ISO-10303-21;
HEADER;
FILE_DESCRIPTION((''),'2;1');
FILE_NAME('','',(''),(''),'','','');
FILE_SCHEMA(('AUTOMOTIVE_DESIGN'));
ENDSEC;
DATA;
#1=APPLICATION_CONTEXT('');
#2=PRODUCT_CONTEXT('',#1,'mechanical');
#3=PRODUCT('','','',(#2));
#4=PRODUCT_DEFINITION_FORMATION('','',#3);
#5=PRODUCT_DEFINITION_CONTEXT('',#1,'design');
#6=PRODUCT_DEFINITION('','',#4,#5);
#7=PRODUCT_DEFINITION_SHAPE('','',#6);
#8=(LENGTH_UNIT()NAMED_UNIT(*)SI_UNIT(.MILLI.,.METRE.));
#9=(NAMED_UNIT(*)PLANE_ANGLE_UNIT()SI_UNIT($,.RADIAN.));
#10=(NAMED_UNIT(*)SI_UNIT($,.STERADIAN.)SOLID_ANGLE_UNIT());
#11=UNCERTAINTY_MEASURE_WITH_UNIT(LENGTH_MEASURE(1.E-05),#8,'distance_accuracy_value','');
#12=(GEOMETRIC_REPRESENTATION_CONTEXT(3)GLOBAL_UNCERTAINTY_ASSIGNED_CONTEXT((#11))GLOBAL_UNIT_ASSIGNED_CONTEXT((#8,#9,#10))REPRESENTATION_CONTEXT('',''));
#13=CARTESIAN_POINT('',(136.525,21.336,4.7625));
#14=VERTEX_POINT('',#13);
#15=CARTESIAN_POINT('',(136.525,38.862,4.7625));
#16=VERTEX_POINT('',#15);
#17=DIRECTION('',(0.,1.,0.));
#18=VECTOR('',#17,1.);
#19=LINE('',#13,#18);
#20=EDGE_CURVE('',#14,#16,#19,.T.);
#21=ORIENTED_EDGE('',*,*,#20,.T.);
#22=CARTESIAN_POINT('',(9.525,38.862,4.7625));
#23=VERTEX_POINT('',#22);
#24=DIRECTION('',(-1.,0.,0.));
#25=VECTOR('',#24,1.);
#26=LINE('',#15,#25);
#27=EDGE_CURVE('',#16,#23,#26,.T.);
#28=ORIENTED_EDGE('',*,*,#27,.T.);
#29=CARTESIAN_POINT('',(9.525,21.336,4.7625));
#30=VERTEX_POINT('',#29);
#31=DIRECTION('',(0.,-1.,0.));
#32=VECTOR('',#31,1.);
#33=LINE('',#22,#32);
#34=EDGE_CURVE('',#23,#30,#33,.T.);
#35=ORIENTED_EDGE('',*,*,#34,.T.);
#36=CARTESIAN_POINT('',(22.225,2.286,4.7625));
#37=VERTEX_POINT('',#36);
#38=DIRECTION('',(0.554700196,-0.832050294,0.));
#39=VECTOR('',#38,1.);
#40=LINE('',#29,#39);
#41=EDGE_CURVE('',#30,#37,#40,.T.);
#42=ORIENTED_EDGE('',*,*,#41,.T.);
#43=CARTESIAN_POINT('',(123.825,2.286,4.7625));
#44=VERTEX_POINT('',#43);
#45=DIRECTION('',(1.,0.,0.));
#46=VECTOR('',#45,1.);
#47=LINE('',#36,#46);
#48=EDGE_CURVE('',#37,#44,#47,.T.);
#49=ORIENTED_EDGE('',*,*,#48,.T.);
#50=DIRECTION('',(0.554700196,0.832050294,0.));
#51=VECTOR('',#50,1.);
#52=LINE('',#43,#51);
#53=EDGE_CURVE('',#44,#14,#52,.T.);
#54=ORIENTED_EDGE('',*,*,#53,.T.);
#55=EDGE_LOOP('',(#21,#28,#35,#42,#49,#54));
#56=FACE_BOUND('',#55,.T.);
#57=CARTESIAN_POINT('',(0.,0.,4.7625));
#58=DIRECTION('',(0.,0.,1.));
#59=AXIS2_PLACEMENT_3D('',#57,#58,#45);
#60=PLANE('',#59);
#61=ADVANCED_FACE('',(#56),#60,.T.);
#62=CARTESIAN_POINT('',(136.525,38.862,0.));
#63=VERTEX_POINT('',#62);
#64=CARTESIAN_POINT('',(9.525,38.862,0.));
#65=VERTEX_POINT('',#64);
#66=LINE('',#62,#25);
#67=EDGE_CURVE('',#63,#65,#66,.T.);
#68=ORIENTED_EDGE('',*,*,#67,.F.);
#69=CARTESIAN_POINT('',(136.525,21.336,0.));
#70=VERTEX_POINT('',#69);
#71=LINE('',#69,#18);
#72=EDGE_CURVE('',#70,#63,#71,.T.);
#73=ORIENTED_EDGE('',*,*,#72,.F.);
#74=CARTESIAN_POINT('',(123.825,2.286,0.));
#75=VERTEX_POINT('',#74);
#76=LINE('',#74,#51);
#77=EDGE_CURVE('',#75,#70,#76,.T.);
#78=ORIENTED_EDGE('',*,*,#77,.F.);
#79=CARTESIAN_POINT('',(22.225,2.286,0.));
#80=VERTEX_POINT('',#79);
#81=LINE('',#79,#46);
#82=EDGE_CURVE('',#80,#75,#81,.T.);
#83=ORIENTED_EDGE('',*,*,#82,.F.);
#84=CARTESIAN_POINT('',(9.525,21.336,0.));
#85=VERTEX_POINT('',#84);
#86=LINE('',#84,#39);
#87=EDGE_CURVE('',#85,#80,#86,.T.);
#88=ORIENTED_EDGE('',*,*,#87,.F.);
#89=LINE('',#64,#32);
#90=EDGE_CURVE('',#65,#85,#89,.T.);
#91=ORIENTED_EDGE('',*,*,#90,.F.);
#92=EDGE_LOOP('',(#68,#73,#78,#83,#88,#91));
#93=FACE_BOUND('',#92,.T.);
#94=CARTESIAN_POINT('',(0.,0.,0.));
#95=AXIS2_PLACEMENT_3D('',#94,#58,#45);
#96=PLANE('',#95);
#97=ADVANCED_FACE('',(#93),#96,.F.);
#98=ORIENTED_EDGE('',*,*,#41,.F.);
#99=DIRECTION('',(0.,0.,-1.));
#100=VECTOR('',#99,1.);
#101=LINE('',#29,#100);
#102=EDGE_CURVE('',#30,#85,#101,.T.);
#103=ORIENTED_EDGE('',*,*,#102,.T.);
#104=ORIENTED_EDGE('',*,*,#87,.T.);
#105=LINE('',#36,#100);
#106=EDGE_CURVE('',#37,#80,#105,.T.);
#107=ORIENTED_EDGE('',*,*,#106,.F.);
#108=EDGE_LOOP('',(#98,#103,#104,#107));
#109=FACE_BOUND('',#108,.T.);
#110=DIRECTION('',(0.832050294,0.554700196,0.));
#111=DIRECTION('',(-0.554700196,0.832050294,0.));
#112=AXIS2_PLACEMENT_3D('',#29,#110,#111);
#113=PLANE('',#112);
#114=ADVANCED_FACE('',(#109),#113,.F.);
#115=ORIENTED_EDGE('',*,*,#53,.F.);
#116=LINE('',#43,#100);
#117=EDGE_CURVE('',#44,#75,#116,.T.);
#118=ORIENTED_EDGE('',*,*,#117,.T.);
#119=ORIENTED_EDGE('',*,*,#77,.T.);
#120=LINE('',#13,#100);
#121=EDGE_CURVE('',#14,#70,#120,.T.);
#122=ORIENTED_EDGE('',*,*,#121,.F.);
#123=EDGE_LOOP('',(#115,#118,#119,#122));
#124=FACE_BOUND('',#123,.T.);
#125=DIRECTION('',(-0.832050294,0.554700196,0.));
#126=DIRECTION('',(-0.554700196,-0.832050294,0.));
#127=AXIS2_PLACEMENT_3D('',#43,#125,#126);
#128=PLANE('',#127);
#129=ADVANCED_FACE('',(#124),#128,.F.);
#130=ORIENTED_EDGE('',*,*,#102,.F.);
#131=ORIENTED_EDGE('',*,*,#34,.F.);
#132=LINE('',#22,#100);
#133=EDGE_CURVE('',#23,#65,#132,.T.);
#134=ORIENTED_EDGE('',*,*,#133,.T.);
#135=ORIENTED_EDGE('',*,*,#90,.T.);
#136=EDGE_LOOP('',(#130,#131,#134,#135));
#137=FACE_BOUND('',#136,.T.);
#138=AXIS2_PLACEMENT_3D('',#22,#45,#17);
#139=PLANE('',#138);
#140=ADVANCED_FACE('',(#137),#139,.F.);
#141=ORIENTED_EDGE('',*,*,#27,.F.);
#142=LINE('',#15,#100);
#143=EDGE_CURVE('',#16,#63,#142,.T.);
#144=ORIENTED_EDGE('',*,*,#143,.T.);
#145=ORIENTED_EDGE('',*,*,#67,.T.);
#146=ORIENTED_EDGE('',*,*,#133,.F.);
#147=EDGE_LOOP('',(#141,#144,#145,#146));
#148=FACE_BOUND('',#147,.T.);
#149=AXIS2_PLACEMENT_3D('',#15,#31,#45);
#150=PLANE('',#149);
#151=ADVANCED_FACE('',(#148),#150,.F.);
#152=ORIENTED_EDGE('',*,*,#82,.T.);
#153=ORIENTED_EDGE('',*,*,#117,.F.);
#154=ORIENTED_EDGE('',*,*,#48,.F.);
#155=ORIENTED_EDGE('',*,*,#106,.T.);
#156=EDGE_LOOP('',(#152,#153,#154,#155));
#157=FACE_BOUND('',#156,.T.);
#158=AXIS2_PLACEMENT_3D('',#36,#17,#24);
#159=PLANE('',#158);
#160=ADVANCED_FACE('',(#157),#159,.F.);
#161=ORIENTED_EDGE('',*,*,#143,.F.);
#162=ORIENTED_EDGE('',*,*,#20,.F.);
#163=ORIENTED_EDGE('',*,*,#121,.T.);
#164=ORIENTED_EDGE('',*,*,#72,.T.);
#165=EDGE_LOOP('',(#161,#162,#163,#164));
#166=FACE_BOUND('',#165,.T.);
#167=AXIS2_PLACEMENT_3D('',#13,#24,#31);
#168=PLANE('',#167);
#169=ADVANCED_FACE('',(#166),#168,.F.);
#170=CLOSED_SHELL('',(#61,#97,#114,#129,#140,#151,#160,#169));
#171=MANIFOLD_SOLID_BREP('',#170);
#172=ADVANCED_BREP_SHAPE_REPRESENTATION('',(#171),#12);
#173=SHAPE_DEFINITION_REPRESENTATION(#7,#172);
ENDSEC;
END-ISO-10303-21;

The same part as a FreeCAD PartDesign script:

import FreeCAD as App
import Part
import Sketcher
from FreeCAD import Vector
Q = App.Units.Quantity

doc = App.newDocument("Part")
body = doc.addObject("PartDesign::Body", "Body")

# Sketch on XY plane
sketch1 = doc.addObject("Sketcher::SketchObject", "Sketch")
body.addObject(sketch1)
sketch1.AttachmentSupport = (doc.XY_Plane, [""])
sketch1.MapMode = "FlatFace"
sketch1.addGeometry([
    Part.LineSegment(Vector(124, 2, 0), Vector(137, 21, 0)),  # 0
    Part.LineSegment(Vector(137, 21, 0), Vector(137, 39, 0)),  # 1
    Part.LineSegment(Vector(137, 39, 0), Vector(10, 39, 0)),  # 2
    Part.LineSegment(Vector(10, 39, 0), Vector(10, 21, 0)),  # 3
    Part.LineSegment(Vector(10, 21, 0), Vector(22, 2, 0)),  # 4
    Part.LineSegment(Vector(22, 2, 0), Vector(124, 2, 0)),  # 5
], False)
sketch1.addConstraint([
    Sketcher.Constraint("Coincident", 0, 2, 1, 1),
    Sketcher.Constraint("Coincident", 1, 2, 2, 1),
    Sketcher.Constraint("Coincident", 2, 2, 3, 1),
    Sketcher.Constraint("Coincident", 3, 2, 4, 1),
    Sketcher.Constraint("Coincident", 4, 2, 5, 1),
    Sketcher.Constraint("Coincident", 5, 2, 0, 1),
    Sketcher.Constraint("Vertical", 1),
    Sketcher.Constraint("Horizontal", 2),
    Sketcher.Constraint("Vertical", 3),
    Sketcher.Constraint("Horizontal", 5),
    Sketcher.Constraint("Horizontal", 0, 2, 3, 2),
    Sketcher.Constraint("Equal", 0, 4),
    Sketcher.Constraint("DistanceX", 2, 2, 2, 1, Q("5 in")),
    Sketcher.Constraint("DistanceX", 5, 1, 5, 2, Q("4 in")),
    Sketcher.Constraint("DistanceY", 1, 1, 1, 2, Q("0.69 in")),
    Sketcher.Constraint("DistanceY", -1, 1, 0, 2, Q("0.84 in")),
    Sketcher.Constraint("DistanceY", -1, 1, 4, 2, Q("0.09 in")),
    Sketcher.Constraint("DistanceX", -1, 1, 0, 2, Q("5.375 in")),
])
pad1 = doc.addObject("PartDesign::Pad", "Pad")
body.addObject(pad1)
pad1.Profile = sketch1
pad1.Length = Q("0.1875 in")

doc.recompute()
